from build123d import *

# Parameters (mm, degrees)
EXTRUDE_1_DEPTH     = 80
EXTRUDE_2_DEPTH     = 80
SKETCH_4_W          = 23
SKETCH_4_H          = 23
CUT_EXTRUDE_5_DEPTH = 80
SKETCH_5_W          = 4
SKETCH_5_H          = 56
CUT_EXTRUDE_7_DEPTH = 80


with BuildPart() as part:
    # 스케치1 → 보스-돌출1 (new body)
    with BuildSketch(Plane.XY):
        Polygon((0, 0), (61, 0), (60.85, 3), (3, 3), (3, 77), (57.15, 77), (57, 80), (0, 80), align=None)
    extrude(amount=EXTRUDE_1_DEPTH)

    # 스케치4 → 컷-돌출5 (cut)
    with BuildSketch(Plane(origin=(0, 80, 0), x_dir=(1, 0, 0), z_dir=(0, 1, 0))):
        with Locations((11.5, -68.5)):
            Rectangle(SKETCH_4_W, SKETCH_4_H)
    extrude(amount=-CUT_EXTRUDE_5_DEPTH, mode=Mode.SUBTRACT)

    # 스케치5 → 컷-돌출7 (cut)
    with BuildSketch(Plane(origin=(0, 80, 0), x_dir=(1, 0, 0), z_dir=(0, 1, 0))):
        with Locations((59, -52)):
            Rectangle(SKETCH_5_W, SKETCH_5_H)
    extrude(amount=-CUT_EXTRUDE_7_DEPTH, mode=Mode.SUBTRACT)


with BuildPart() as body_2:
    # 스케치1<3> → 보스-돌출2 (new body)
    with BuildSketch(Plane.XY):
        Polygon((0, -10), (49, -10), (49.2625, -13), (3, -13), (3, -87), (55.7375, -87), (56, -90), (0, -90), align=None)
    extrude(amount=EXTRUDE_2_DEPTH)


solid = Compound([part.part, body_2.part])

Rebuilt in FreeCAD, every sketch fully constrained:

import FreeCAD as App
import Part
import Sketcher
from FreeCAD import Vector
Q = App.Units.Quantity


def add_polygon(sketch, points):
    """Adds a closed chain of lines whose ends are joined by coincident constraints."""
    first, n = sketch.GeometryCount, len(points)
    for a, b in zip(points, points[1:] + points[:1]):
        sketch.addGeometry(Part.LineSegment(App.Vector(*a, 0), App.Vector(*b, 0)), False)
    for i in range(n):
        sketch.addConstraint(Sketcher.Constraint("Coincident", first + i, 2, first + (i + 1) % n, 1))

doc = App.newDocument("Part")
body = doc.addObject("PartDesign::Body", "Body")

# Sketch on XY plane
sketch1 = body.newObject("Sketcher::SketchObject", "Sketch")
sketch1.AttachmentSupport = (doc.getObject("XY_Plane"), [""])
sketch1.MapMode = "FlatFace"
add_polygon(sketch1, [(0, 0), (61, 0), (60.9, 3), (3, 3), (3, 77), (57.1, 77), (57, 80), (0, 80)])  # lines 0-7
sketch1.addConstraint([
    Sketcher.Constraint("Horizontal", 0),
    Sketcher.Constraint("Horizontal", 2),
    Sketcher.Constraint("Vertical", 3),
    Sketcher.Constraint("Horizontal", 4),
    Sketcher.Constraint("Horizontal", 6),
    Sketcher.Constraint("Vertical", 7),
    Sketcher.Constraint("Coincident", 7, 2, -1, 1),
    Sketcher.Constraint("Parallel", 1, 5),
    Sketcher.Constraint("Equal", 1, 5),
    Sketcher.Constraint("DistanceX", 0, 1, 0, 2, Q("61 mm")),
    Sketcher.Constraint("DistanceX", 6, 2, 6, 1, Q("57 mm")),
    Sketcher.Constraint("DistanceY", 3, 1, 3, 2, Q("74 mm")),
    Sketcher.Constraint("DistanceY", 7, 2, 7, 1, Q("80 mm")),
    Sketcher.Constraint("DistanceX", -1, 1, 2, 2, Q("3 mm")),
    Sketcher.Constraint("DistanceX", 2, 2, 2, 1, Q("57.85 mm")),
])
pad1 = body.newObject("PartDesign::Pad", "Pad")
pad1.Profile = sketch1
pad1.Length = 80

# Sketch on XZ plane
sketch2 = body.newObject("Sketcher::SketchObject", "Sketch001")
sketch2.AttachmentSupport = (doc.getObject("XZ_Plane"), [""])
sketch2.MapMode = "FlatFace"
sketch2.AttachmentOffset = App.Placement(Vector(0, 0, -80), App.Rotation())
add_polygon(sketch2, [(0, 57), (0, 80), (23, 80), (23, 57)])  # lines 0-3
sketch2.addConstraint([
    Sketcher.Constraint("Vertical", 0),
    Sketcher.Constraint("Horizontal", 1),
    Sketcher.Constraint("Vertical", 2),
    Sketcher.Constraint("Horizontal", 3),
    Sketcher.Constraint("PointOnObject", 0, 2, -2),
    Sketcher.Constraint("Equal", 3, 0),
    Sketcher.Constraint("DistanceX", 1, 1, 1, 2, Q("23 mm")),
    Sketcher.Constraint("DistanceY", -1, 1, 0, 2, Q("80 mm")),
])
pocket1 = body.newObject("PartDesign::Pocket", "Pocket")
pocket1.Profile = sketch2
pocket1.Length = 80
pocket1.Reversed = True

# Sketch on XZ plane
sketch3 = body.newObject("Sketcher::SketchObject", "Sketch002")
sketch3.AttachmentSupport = (doc.getObject("XZ_Plane"), [""])
sketch3.MapMode = "FlatFace"
sketch3.AttachmentOffset = App.Placement(Vector(0, 0, -80), App.Rotation())
add_polygon(sketch3, [(57, 24), (57, 80), (61, 80), (61, 24)])  # lines 0-3
sketch3.addConstraint([
    Sketcher.Constraint("Vertical", 0),
    Sketcher.Constraint("Horizontal", 1),
    Sketcher.Constraint("Vertical", 2),
    Sketcher.Constraint("Horizontal", 3),
    Sketcher.Constraint("DistanceX", 1, 1, 1, 2, Q("4 mm")),
    Sketcher.Constraint("DistanceY", 0, 1, 0, 2, Q("56 mm")),
    Sketcher.Constraint("DistanceX", -1, 1, 0, 2, Q("57 mm")),
    Sketcher.Constraint("DistanceY", -1, 1, 0, 2, Q("80 mm")),
])
pocket2 = body.newObject("PartDesign::Pocket", "Pocket001")
pocket2.Profile = sketch3
pocket2.Length = 80
pocket2.Reversed = True
body2 = doc.addObject("PartDesign::Body", "Body001")

# Sketch on XY plane
sketch4 = body2.newObject("Sketcher::SketchObject", "Sketch003")
sketch4.AttachmentSupport = (doc.getObject("XY_Plane001"), [""])
sketch4.MapMode = "FlatFace"
add_polygon(sketch4, [(49, -10), (0, -10), (0, -90), (56, -90), (55.7, -87), (3, -87), (3, -13), (49.3, -13)])  # lines 0-7
sketch4.addConstraint([
    Sketcher.Constraint("Horizontal", 0),
    Sketcher.Constraint("Vertical", 1),
    Sketcher.Constraint("Horizontal", 2),
    Sketcher.Constraint("Horizontal", 4),
    Sketcher.Constraint("Vertical", 5),
    Sketcher.Constraint("Horizontal", 6),
    Sketcher.Constraint("PointOnObject", 0, 2, -2),
    Sketcher.Constraint("Parallel", 3, 7),
    Sketcher.Constraint("Equal", 3, 7),
    Sketcher.Constraint("DistanceX", 0, 2, 0, 1, Q("49 mm")),
    Sketcher.Constraint("DistanceX", 2, 1, 2, 2, Q("56 mm")),
    Sketcher.Constraint("DistanceY", 1, 2, 1, 1, Q("80 mm")),
    Sketcher.Constraint("DistanceY", 5, 1, 5, 2, Q("74 mm")),
    Sketcher.Constraint("DistanceY", 0, 2, -1, 1, Q("10 mm")),
    Sketcher.Constraint("DistanceX", -1, 1, 4, 2, Q("3 mm")),
    Sketcher.Constraint("DistanceX", 4, 2, 4, 1, Q("52.7375 mm")),
])
pad2 = body2.newObject("PartDesign::Pad", "Pad001")
pad2.Profile = sketch4
pad2.Length = 80

doc.recompute()
